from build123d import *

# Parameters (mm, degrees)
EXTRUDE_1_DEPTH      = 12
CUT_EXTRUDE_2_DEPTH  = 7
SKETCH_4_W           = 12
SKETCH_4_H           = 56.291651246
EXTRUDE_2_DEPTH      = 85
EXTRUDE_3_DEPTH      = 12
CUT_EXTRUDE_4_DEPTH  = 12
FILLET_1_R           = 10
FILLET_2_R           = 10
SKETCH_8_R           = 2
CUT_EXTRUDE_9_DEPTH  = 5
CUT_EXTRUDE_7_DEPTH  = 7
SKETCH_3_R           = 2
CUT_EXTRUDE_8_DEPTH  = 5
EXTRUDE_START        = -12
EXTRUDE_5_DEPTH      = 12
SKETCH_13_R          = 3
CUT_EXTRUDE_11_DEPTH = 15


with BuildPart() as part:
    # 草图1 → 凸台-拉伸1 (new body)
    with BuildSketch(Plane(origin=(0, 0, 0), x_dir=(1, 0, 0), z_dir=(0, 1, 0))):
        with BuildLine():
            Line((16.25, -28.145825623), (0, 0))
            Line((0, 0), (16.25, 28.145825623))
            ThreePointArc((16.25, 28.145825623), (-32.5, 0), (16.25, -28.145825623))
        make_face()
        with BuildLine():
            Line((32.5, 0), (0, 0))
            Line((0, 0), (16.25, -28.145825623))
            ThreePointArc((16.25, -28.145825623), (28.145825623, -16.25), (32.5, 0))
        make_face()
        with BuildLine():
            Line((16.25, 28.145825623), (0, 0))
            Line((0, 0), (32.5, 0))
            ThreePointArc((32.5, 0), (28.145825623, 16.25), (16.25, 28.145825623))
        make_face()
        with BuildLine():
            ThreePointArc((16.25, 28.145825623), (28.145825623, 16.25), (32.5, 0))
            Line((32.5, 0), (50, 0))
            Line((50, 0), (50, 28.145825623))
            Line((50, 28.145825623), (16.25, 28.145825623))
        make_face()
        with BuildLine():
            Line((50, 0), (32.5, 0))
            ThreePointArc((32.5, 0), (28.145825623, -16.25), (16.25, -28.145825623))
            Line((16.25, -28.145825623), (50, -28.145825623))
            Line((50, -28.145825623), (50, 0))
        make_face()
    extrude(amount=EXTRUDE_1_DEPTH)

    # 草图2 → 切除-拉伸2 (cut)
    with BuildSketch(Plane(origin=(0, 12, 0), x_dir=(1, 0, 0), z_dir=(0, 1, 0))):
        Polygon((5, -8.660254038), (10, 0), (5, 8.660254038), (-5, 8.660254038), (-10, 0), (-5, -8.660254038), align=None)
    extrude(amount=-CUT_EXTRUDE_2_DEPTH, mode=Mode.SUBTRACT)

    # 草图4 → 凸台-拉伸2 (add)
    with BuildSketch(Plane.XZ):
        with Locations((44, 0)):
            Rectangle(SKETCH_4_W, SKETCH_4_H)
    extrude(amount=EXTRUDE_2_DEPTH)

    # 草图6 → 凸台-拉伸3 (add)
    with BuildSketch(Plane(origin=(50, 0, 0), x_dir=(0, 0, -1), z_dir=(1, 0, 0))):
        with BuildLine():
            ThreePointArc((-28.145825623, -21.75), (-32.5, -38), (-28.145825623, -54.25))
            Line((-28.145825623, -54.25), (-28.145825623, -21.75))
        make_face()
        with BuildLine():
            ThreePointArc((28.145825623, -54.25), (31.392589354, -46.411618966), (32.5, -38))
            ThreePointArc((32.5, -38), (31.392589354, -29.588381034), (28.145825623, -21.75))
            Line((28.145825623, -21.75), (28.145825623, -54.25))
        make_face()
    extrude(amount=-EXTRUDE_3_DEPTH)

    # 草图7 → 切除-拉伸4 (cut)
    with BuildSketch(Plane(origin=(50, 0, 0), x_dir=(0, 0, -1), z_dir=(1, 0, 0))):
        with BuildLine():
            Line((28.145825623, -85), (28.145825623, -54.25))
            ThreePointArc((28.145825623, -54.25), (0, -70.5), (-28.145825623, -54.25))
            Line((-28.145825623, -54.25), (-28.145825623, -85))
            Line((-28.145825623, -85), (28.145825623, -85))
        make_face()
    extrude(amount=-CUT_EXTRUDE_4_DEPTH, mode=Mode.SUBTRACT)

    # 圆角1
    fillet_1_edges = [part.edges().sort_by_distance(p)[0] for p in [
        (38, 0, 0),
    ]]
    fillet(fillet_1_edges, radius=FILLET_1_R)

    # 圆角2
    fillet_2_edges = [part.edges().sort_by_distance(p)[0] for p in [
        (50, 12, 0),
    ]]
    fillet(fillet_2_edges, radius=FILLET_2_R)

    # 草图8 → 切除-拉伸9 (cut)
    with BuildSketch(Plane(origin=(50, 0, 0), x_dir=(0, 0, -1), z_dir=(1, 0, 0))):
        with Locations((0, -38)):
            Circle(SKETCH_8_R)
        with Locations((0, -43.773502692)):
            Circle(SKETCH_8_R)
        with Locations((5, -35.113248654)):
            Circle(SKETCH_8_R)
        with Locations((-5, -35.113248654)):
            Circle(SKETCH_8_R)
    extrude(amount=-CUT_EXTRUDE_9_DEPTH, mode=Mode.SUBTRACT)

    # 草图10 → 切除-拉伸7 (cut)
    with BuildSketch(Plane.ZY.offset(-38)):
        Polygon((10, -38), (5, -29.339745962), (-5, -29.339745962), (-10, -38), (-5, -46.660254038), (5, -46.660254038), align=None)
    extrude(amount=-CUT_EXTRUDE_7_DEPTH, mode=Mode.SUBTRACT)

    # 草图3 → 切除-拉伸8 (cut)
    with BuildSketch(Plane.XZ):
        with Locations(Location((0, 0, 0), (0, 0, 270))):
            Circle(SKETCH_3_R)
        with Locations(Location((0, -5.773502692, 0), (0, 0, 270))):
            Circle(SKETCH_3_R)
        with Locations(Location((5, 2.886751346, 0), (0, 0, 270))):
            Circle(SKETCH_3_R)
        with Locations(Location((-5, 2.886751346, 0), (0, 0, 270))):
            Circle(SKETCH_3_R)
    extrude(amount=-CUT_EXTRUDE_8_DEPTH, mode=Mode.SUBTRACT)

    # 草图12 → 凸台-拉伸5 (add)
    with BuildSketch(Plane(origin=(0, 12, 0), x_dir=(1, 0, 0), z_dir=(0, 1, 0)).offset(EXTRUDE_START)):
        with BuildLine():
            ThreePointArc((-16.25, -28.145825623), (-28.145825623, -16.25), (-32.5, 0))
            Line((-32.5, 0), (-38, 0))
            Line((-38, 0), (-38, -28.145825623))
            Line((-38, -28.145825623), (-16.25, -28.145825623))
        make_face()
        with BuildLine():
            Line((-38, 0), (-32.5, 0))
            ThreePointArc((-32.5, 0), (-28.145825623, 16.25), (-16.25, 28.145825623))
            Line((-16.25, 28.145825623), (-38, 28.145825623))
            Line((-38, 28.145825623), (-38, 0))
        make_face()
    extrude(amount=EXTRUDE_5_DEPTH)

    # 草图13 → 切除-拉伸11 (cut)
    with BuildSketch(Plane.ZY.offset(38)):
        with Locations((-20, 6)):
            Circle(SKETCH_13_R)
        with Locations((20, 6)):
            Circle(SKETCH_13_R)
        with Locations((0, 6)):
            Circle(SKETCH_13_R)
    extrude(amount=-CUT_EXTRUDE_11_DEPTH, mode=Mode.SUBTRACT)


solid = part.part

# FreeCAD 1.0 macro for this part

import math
import FreeCAD as App
import Part
import Sketcher
Q = App.Units.Quantity


def edges_at(feature, points):
    """Names of the edges that pass closest to the given points."""
    edges = feature.Shape.Edges
    near = lambda p: min(range(len(edges)), key=lambda i: edges[i].distToShape(Part.Vertex(*p))[0])
    return sorted({f"Edge{near(p) + 1}" for p in points})

doc = App.newDocument("Part")
body = doc.addObject("PartDesign::Body", "Body")

# Sketch on XZ plane
sketch1 = body.newObject("Sketcher::SketchObject", "Sketch")
sketch1.AttachmentSupport = (doc.getObject("XZ_Plane"), [""])
sketch1.MapMode = "FlatFace"
sketch1.addGeometry(Part.ArcOfCircle(Part.Circle(App.Vector(0, 0, 0), App.Vector(0, 0, 1), 32.5), math.radians(60), math.radians(300)), False)
sketch1.addGeometry(Part.LineSegment(App.Vector(16.25, 28.145826, 0), App.Vector(50, 28.145826, 0)), False)
sketch1.addGeometry(Part.LineSegment(App.Vector(50, 28.145826, 0), App.Vector(50, -28.145826, 0)), False)
sketch1.addGeometry(Part.LineSegment(App.Vector(50, -28.145826, 0), App.Vector(16.25, -28.145826, 0)), False)
sketch1.addConstraint(Sketcher.Constraint("Coincident", 0, 1, 1, 1))
sketch1.addConstraint(Sketcher.Constraint("Coincident", 1, 2, 2, 1))
sketch1.addConstraint(Sketcher.Constraint("Coincident", 2, 2, 3, 1))
sketch1.addConstraint(Sketcher.Constraint("Coincident", 3, 2, 0, 2))
sketch1.addConstraint(Sketcher.Constraint("Horizontal", 1))
sketch1.addConstraint(Sketcher.Constraint("Vertical", 2))
sketch1.addConstraint(Sketcher.Constraint("Horizontal", 3))
sketch1.addConstraint(Sketcher.Constraint("Coincident", 0, 3, -1, 1))
sketch1.addConstraint(Sketcher.Constraint("Vertical", 0, 1, 3, 2))
sketch1.addConstraint(Sketcher.Constraint("Radius", 0, Q("32.5 mm")))
sketch1.addConstraint(Sketcher.Constraint("DistanceX", -1, 1, 1, 2, Q("50 mm")))
sketch1.addConstraint(Sketcher.Constraint("DistanceX", 1, 1, 1, 2, Q("33.75 mm")))
pad1 = body.newObject("PartDesign::Pad", "Pad")
pad1.Profile = sketch1
pad1.Length = 12
pad1.Reversed = True

# Sketch on XZ plane
sketch2 = body.newObject("Sketcher::SketchObject", "Sketch001")
sketch2.AttachmentSupport = (doc.getObject("XZ_Plane"), [""])
sketch2.MapMode = "FlatFace"
sketch2.AttachmentOffset = App.Placement(App.Vector(0, 0, -12), App.Rotation())
sketch2.addGeometry(Part.LineSegment(App.Vector(5, 8.660254, 0), App.Vector(10, 0, 0)), False)
sketch2.addGeometry(Part.LineSegment(App.Vector(10, 0, 0), App.Vector(5, -8.660254, 0)), False)
sketch2.addGeometry(Part.LineSegment(App.Vector(5, -8.660254, 0), App.Vector(-5, -8.660254, 0)), False)
sketch2.addGeometry(Part.LineSegment(App.Vector(-5, -8.660254, 0), App.Vector(-10, 0, 0)), False)
sketch2.addGeometry(Part.LineSegment(App.Vector(-10, 0, 0), App.Vector(-5, 8.660254, 0)), False)
sketch2.addGeometry(Part.LineSegment(App.Vector(-5, 8.660254, 0), App.Vector(5, 8.660254, 0)), False)
sketch2.addConstraint(Sketcher.Constraint("Coincident", 0, 2, 1, 1))
sketch2.addConstraint(Sketcher.Constraint("Coincident", 1, 2, 2, 1))
sketch2.addConstraint(Sketcher.Constraint("Coincident", 2, 2, 3, 1))
sketch2.addConstraint(Sketcher.Constraint("Coincident", 3, 2, 4, 1))
sketch2.addConstraint(Sketcher.Constraint("Coincident", 4, 2, 5, 1))
sketch2.addConstraint(Sketcher.Constraint("Coincident", 5, 2, 0, 1))
sketch2.addConstraint(Sketcher.Constraint("Horizontal", 2))
sketch2.addConstraint(Sketcher.Constraint("Horizontal", 5))
sketch2.addConstraint(Sketcher.Constraint("Symmetric", 0, 2, 3, 2, -1, 1))
sketch2.addConstraint(Sketcher.Constraint("Symmetric", 1, 2, 4, 2, -1, 1))
sketch2.addConstraint(Sketcher.Constraint("PointOnObject", 0, 2, -1))
sketch2.addConstraint(Sketcher.Constraint("Parallel", 0, 3))
sketch2.addConstraint(Sketcher.Constraint("Vertical", 2, 2, 4, 2))
sketch2.addConstraint(Sketcher.Constraint("DistanceX", 2, 2, 2, 1, Q("10 mm")))
sketch2.addConstraint(Sketcher.Constraint("Angle", 0, Q("-60 deg")))
sketch2.addConstraint(Sketcher.Constraint("Distance", 0, Q("10 mm")))
pocket1 = body.newObject("PartDesign::Pocket", "Pocket")
pocket1.Profile = sketch2
pocket1.Length = 7
pocket1.Reversed = True

# Sketch on XZ plane
sketch3 = body.newObject("Sketcher::SketchObject", "Sketch002")
sketch3.AttachmentSupport = (doc.getObject("XZ_Plane"), [""])
sketch3.MapMode = "FlatFace"
sketch3.addGeometry(Part.LineSegment(App.Vector(38, 28.145826, 0), App.Vector(38, -28.145826, 0)), False)
sketch3.addGeometry(Part.LineSegment(App.Vector(38, -28.145826, 0), App.Vector(50, -28.145826, 0)), False)
sketch3.addGeometry(Part.LineSegment(App.Vector(50, -28.145826, 0), App.Vector(50, 28.145826, 0)), False)
sketch3.addGeometry(Part.LineSegment(App.Vector(50, 28.145826, 0), App.Vector(38, 28.145826, 0)), False)
sketch3.addConstraint(Sketcher.Constraint("Coincident", 0, 2, 1, 1))
sketch3.addConstraint(Sketcher.Constraint("Coincident", 1, 2, 2, 1))
sketch3.addConstraint(Sketcher.Constraint("Coincident", 2, 2, 3, 1))
sketch3.addConstraint(Sketcher.Constraint("Coincident", 3, 2, 0, 1))
sketch3.addConstraint(Sketcher.Constraint("Vertical", 0))
sketch3.addConstraint(Sketcher.Constraint("Horizontal", 1))
sketch3.addConstraint(Sketcher.Constraint("Vertical", 2))
sketch3.addConstraint(Sketcher.Constraint("Horizontal", 3))
sketch3.addConstraint(Sketcher.Constraint("DistanceX", 1, 1, 1, 2, Q("12 mm")))
sketch3.addConstraint(Sketcher.Constraint("DistanceX", -1, 1, 0, 2, Q("38 mm")))
sketch3.addConstraint(Sketcher.Constraint("DistanceY", 0, 2, 0, 1, Q("56.291651 mm")))
sketch3.addConstraint(Sketcher.Constraint("DistanceY", 0, 2, -1, 1, Q("28.145826 mm")))
pad2 = body.newObject("PartDesign::Pad", "Pad001")
pad2.Profile = sketch3
pad2.Length = 85

# Sketch on YZ plane
sketch4 = body.newObject("Sketcher::SketchObject", "Sketch003")
sketch4.AttachmentSupport = (doc.getObject("YZ_Plane"), [""])
sketch4.MapMode = "FlatFace"
sketch4.AttachmentOffset = App.Placement(App.Vector(0, 0, 50), App.Rotation())
sketch4.addGeometry(Part.ArcOfCircle(Part.Circle(App.Vector(-38, 0, 0), App.Vector(0, 0, 1), 32.5), math.radians(60), math.radians(120)), False)
sketch4.addGeometry(Part.LineSegment(App.Vector(-54.25, 28.145826, 0), App.Vector(-21.75, 28.145826, 0)), False)
sketch4.addGeometry(Part.ArcOfCircle(Part.Circle(App.Vector(-38, 0, 0), App.Vector(0, 0, 1), 32.5), math.radians(-120), math.radians(-90)), False)
sketch4.addGeometry(Part.ArcOfCircle(Part.Circle(App.Vector(-38, 0, 0), App.Vector(0, 0, 1), 32.5), math.radians(-90), math.radians(-60)), False)
sketch4.addGeometry(Part.LineSegment(App.Vector(-21.75, -28.145826, 0), App.Vector(-54.25, -28.145826, 0)), False)
sketch4.addConstraint(Sketcher.Constraint("Coincident", 0, 1, 1, 2))
sketch4.addConstraint(Sketcher.Constraint("Coincident", 1, 1, 0, 2))
sketch4.addConstraint(Sketcher.Constraint("Tangent", 2, 2, 3, 1))
sketch4.addConstraint(Sketcher.Constraint("Coincident", 3, 2, 4, 1))
sketch4.addConstraint(Sketcher.Constraint("Coincident", 4, 2, 2, 1))
sketch4.addConstraint(Sketcher.Constraint("Horizontal", 1))
sketch4.addConstraint(Sketcher.Constraint("Horizontal", 4))
sketch4.addConstraint(Sketcher.Constraint("Coincident", 2, 3, 0, 3))
sketch4.addConstraint(Sketcher.Constraint("Equal", 0, 2))
sketch4.addConstraint(Sketcher.Constraint("Equal", 2, 3))
sketch4.addConstraint(Sketcher.Constraint("Symmetric", 0, 1, 3, 2, -1))
sketch4.addConstraint(Sketcher.Constraint("Vertical", 3, 3, 2, 2))
sketch4.addConstraint(Sketcher.Constraint("Radius", 0, Q("32.5 mm")))
sketch4.addConstraint(Sketcher.Constraint("DistanceX", 1, 1, 1, 2, Q("32.5 mm")))
sketch4.addConstraint(Sketcher.Constraint("DistanceX", 0, 3, -1, 1, Q("38 mm")))
pad3 = body.newObject("PartDesign::Pad", "Pad002")
pad3.Profile = sketch4
pad3.Length = 12
pad3.Reversed = True

# Sketch on YZ plane
sketch5 = body.newObject("Sketcher::SketchObject", "Sketch004")
sketch5.AttachmentSupport = (doc.getObject("YZ_Plane"), [""])
sketch5.MapMode = "FlatFace"
sketch5.AttachmentOffset = App.Placement(App.Vector(0, 0, 50), App.Rotation())
sketch5.addGeometry(Part.LineSegment(App.Vector(-85, -28.145826, 0), App.Vector(-54.25, -28.145826, 0)), False)
sketch5.addGeometry(Part.ArcOfCircle(Part.Circle(App.Vector(-38, 0, 0), App.Vector(0, 0, 1), 32.5), math.radians(120), math.radians(240)), False)
sketch5.addGeometry(Part.LineSegment(App.Vector(-54.25, 28.145826, 0), App.Vector(-85, 28.145826, 0)), False)
sketch5.addGeometry(Part.LineSegment(App.Vector(-85, 28.145826, 0), App.Vector(-85, -28.145826, 0)), False)
sketch5.addConstraint(Sketcher.Constraint("Coincident", 0, 2, 1, 2))
sketch5.addConstraint(Sketcher.Constraint("Coincident", 1, 1, 2, 1))
sketch5.addConstraint(Sketcher.Constraint("Coincident", 2, 2, 3, 1))
sketch5.addConstraint(Sketcher.Constraint("Coincident", 3, 2, 0, 1))
sketch5.addConstraint(Sketcher.Constraint("Horizontal", 0))
sketch5.addConstraint(Sketcher.Constraint("Horizontal", 2))
sketch5.addConstraint(Sketcher.Constraint("Vertical", 3))
sketch5.addConstraint(Sketcher.Constraint("Symmetric", 0, 2, 1, 1, -1))
sketch5.addConstraint(Sketcher.Constraint("Radius", 1, Q("32.5 mm")))
sketch5.addConstraint(Sketcher.Constraint("DistanceX", 1, 3, -1, 1, Q("38 mm")))
sketch5.addConstraint(Sketcher.Constraint("DistanceX", 2, 2, -1, 1, Q("85 mm")))
sketch5.addConstraint(Sketcher.Constraint("DistanceX", 0, 1, 0, 2, Q("30.75 mm")))
pocket2 = body.newObject("PartDesign::Pocket", "Pocket001")
pocket2.Profile = sketch5
pocket2.Length = 12
doc.recompute()

fillet = body.newObject("PartDesign::Fillet", "Fillet")
fillet.Base = (pocket2, edges_at(pocket2, [(38, 0, 0)]))
fillet.Radius = 10
doc.recompute()

fillet2 = body.newObject("PartDesign::Fillet", "Fillet001")
fillet2.Base = (fillet, edges_at(fillet, [(50, 12, 0)]))
fillet2.Radius = 10

# Sketch on YZ plane
sketch6 = body.newObject("Sketcher::SketchObject", "Sketch005")
sketch6.AttachmentSupport = (doc.getObject("YZ_Plane"), [""])
sketch6.MapMode = "FlatFace"
sketch6.AttachmentOffset = App.Placement(App.Vector(0, 0, 50), App.Rotation())
sketch6.addGeometry(Part.Circle(App.Vector(-38, 0, 0), App.Vector(0, 0, 1), 2), False)
sketch6.addGeometry(Part.Circle(App.Vector(-43.773503, 0, 0), App.Vector(0, 0, 1), 2), False)
sketch6.addGeometry(Part.Circle(App.Vector(-35.113249, -5, 0), App.Vector(0, 0, 1), 2), False)
sketch6.addGeometry(Part.Circle(App.Vector(-35.113249, 5, 0), App.Vector(0, 0, 1), 2), False)
sketch6.addConstraint(Sketcher.Constraint("Equal", 0, 1))
sketch6.addConstraint(Sketcher.Constraint("Equal", 1, 2))
sketch6.addConstraint(Sketcher.Constraint("Equal", 2, 3))
sketch6.addConstraint(Sketcher.Constraint("Symmetric", 2, 3, 3, 3, -1))
sketch6.addConstraint(Sketcher.Constraint("PointOnObject", 0, 3, -1))
sketch6.addConstraint(Sketcher.Constraint("PointOnObject", 1, 3, -1))
sketch6.addConstraint(Sketcher.Constraint("Diameter", 0, Q("4 mm")))
sketch6.addConstraint(Sketcher.Constraint("DistanceX", 0, 3, -1, 1, Q("38 mm")))
sketch6.addConstraint(Sketcher.Constraint("DistanceY", 2, 3, -1, 1, Q("5 mm")))
sketch6.addConstraint(Sketcher.Constraint("DistanceX", 2, 3, -1, 1, Q("35.113249 mm")))
sketch6.addConstraint(Sketcher.Constraint("DistanceX", 1, 3, -1, 1, Q("43.773503 mm")))
pocket3 = body.newObject("PartDesign::Pocket", "Pocket002")
pocket3.Profile = sketch6
pocket3.Length = 5

# Sketch on YZ plane
sketch7 = body.newObject("Sketcher::SketchObject", "Sketch006")
sketch7.AttachmentSupport = (doc.getObject("YZ_Plane"), [""])
sketch7.MapMode = "FlatFace"
sketch7.AttachmentOffset = App.Placement(App.Vector(0, 0, 38), App.Rotation())
sketch7.addGeometry(Part.LineSegment(App.Vector(-38, 10, 0), App.Vector(-29.339746, 5, 0)), False)
sketch7.addGeometry(Part.LineSegment(App.Vector(-29.339746, 5, 0), App.Vector(-29.339746, -5, 0)), False)
sketch7.addGeometry(Part.LineSegment(App.Vector(-29.339746, -5, 0), App.Vector(-38, -10, 0)), False)
sketch7.addGeometry(Part.LineSegment(App.Vector(-38, -10, 0), App.Vector(-46.660254, -5, 0)), False)
sketch7.addGeometry(Part.LineSegment(App.Vector(-46.660254, -5, 0), App.Vector(-46.660254, 5, 0)), False)
sketch7.addGeometry(Part.LineSegment(App.Vector(-46.660254, 5, 0), App.Vector(-38, 10, 0)), False)
sketch7.addConstraint(Sketcher.Constraint("Coincident", 0, 2, 1, 1))
sketch7.addConstraint(Sketcher.Constraint("Coincident", 1, 2, 2, 1))
sketch7.addConstraint(Sketcher.Constraint("Coincident", 2, 2, 3, 1))
sketch7.addConstraint(Sketcher.Constraint("Coincident", 3, 2, 4, 1))
sketch7.addConstraint(Sketcher.Constraint("Coincident", 4, 2, 5, 1))
sketch7.addConstraint(Sketcher.Constraint("Coincident", 5, 2, 0, 1))
sketch7.addConstraint(Sketcher.Constraint("Vertical", 1))
sketch7.addConstraint(Sketcher.Constraint("Vertical", 4))
sketch7.addConstraint(Sketcher.Constraint("Symmetric", 2, 2, 5, 2, -1))
sketch7.addConstraint(Sketcher.Constraint("Parallel", 0, 3))
sketch7.addConstraint(Sketcher.Constraint("Parallel", 2, 5))
sketch7.addConstraint(Sketcher.Constraint("Horizontal", 1, 2, 3, 2))
sketch7.addConstraint(Sketcher.Constraint("Horizontal", 0, 2, 4, 2))
sketch7.addConstraint(Sketcher.Constraint("DistanceY", 1, 2, 1, 1, Q("10 mm")))
sketch7.addConstraint(Sketcher.Constraint("Angle", 0, Q("-30 deg")))
sketch7.addConstraint(Sketcher.Constraint("Distance", 0, Q("10 mm")))
sketch7.addConstraint(Sketcher.Constraint("DistanceX", 2, 2, -1, 1, Q("38 mm")))
pocket4 = body.newObject("PartDesign::Pocket", "Pocket003")
pocket4.Profile = sketch7
pocket4.Length = 7
pocket4.Reversed = True

# Sketch on XZ plane
sketch8 = body.newObject("Sketcher::SketchObject", "Sketch007")
sketch8.AttachmentSupport = (doc.getObject("XZ_Plane"), [""])
sketch8.MapMode = "FlatFace"
sketch8.addGeometry(Part.Circle(App.Vector(0, 0, 0), App.Vector(0, 0, 1), 2), False)
sketch8.addGeometry(Part.Circle(App.Vector(0, -5.773503, 0), App.Vector(0, 0, 1), 2), False)
sketch8.addGeometry(Part.Circle(App.Vector(5, 2.886751, 0), App.Vector(0, 0, 1), 2), False)
sketch8.addGeometry(Part.Circle(App.Vector(-5, 2.886751, 0), App.Vector(0, 0, 1), 2), False)
sketch8.addConstraint(Sketcher.Constraint("Coincident", 0, 3, -1, 1))
sketch8.addConstraint(Sketcher.Constraint("Equal", 0, 1))
sketch8.addConstraint(Sketcher.Constraint("Equal", 1, 2))
sketch8.addConstraint(Sketcher.Constraint("Equal", 2, 3))
sketch8.addConstraint(Sketcher.Constraint("Symmetric", 2, 3, 3, 3, -2))
sketch8.addConstraint(Sketcher.Constraint("PointOnObject", 1, 3, -2))
sketch8.addConstraint(Sketcher.Constraint("Diameter", 0, Q("4 mm")))
sketch8.addConstraint(Sketcher.Constraint("DistanceX", -1, 1, 2, 3, Q("5 mm")))
sketch8.addConstraint(Sketcher.Constraint("DistanceY", -1, 1, 2, 3, Q("2.886751 mm")))
sketch8.addConstraint(Sketcher.Constraint("DistanceY", 1, 3, -1, 1, Q("5.773503 mm")))
pocket5 = body.newObject("PartDesign::Pocket", "Pocket004")
pocket5.Profile = sketch8
pocket5.Length = 5

# Sketch on XZ plane
sketch9 = body.newObject("Sketcher::SketchObject", "Sketch008")
sketch9.AttachmentSupport = (doc.getObject("XZ_Plane"), [""])
sketch9.MapMode = "FlatFace"
sketch9.addGeometry(Part.ArcOfCircle(Part.Circle(App.Vector(0, 0, 0), App.Vector(0, 0, 1), 32.5), math.radians(120), math.radians(240)), False)
sketch9.addGeometry(Part.LineSegment(App.Vector(-16.25, -28.145826, 0), App.Vector(-38, -28.145826, 0)), False)
sketch9.addGeometry(Part.LineSegment(App.Vector(-38, -28.145826, 0), App.Vector(-38, 28.145826, 0)), False)
sketch9.addGeometry(Part.LineSegment(App.Vector(-38, 28.145826, 0), App.Vector(-16.25, 28.145826, 0)), False)
sketch9.addConstraint(Sketcher.Constraint("Coincident", 0, 2, 1, 1))
sketch9.addConstraint(Sketcher.Constraint("Coincident", 1, 2, 2, 1))
sketch9.addConstraint(Sketcher.Constraint("Coincident", 2, 2, 3, 1))
sketch9.addConstraint(Sketcher.Constraint("Coincident", 3, 2, 0, 1))
sketch9.addConstraint(Sketcher.Constraint("Horizontal", 1))
sketch9.addConstraint(Sketcher.Constraint("Vertical", 2))
sketch9.addConstraint(Sketcher.Constraint("Horizontal", 3))
sketch9.addConstraint(Sketcher.Constraint("Coincident", 0, 3, -1, 1))
sketch9.addConstraint(Sketcher.Constraint("Vertical", 0, 2, 3, 2))
sketch9.addConstraint(Sketcher.Constraint("Radius", 0, Q("32.5 mm")))
sketch9.addConstraint(Sketcher.Constraint("DistanceX", 1, 2, -1, 1, Q("38 mm")))
sketch9.addConstraint(Sketcher.Constraint("DistanceX", 1, 2, 1, 1, Q("21.75 mm")))
pad4 = body.newObject("PartDesign::Pad", "Pad003")
pad4.Profile = sketch9
pad4.Length = 12
pad4.Reversed = True

# Sketch on YZ plane
sketch10 = body.newObject("Sketcher::SketchObject", "Sketch009")
sketch10.AttachmentSupport = (doc.getObject("YZ_Plane"), [""])
sketch10.MapMode = "FlatFace"
sketch10.AttachmentOffset = App.Placement(App.Vector(0, 0, -38), App.Rotation())
sketch10.addGeometry(Part.Circle(App.Vector(6, -20, 0), App.Vector(0, 0, 1), 3), False)
sketch10.addGeometry(Part.Circle(App.Vector(6, 20, 0), App.Vector(0, 0, 1), 3), False)
sketch10.addGeometry(Part.Circle(App.Vector(6, 0, 0), App.Vector(0, 0, 1), 3), False)
sketch10.addConstraint(Sketcher.Constraint("Equal", 0, 1))
sketch10.addConstraint(Sketcher.Constraint("Equal", 1, 2))
sketch10.addConstraint(Sketcher.Constraint("Symmetric", 0, 3, 1, 3, -1))
sketch10.addConstraint(Sketcher.Constraint("PointOnObject", 2, 3, -1))
sketch10.addConstraint(Sketcher.Constraint("Vertical", 1, 3, 2, 3))
sketch10.addConstraint(Sketcher.Constraint("Diameter", 0, Q("6 mm")))
sketch10.addConstraint(Sketcher.Constraint("DistanceX", -1, 1, 0, 3, Q("6 mm")))
sketch10.addConstraint(Sketcher.Constraint("DistanceY", 0, 3, -1, 1, Q("20 mm")))
pocket6 = body.newObject("PartDesign::Pocket", "Pocket005")
pocket6.Profile = sketch10
pocket6.Length = 15
pocket6.Reversed = True

doc.recompute()
